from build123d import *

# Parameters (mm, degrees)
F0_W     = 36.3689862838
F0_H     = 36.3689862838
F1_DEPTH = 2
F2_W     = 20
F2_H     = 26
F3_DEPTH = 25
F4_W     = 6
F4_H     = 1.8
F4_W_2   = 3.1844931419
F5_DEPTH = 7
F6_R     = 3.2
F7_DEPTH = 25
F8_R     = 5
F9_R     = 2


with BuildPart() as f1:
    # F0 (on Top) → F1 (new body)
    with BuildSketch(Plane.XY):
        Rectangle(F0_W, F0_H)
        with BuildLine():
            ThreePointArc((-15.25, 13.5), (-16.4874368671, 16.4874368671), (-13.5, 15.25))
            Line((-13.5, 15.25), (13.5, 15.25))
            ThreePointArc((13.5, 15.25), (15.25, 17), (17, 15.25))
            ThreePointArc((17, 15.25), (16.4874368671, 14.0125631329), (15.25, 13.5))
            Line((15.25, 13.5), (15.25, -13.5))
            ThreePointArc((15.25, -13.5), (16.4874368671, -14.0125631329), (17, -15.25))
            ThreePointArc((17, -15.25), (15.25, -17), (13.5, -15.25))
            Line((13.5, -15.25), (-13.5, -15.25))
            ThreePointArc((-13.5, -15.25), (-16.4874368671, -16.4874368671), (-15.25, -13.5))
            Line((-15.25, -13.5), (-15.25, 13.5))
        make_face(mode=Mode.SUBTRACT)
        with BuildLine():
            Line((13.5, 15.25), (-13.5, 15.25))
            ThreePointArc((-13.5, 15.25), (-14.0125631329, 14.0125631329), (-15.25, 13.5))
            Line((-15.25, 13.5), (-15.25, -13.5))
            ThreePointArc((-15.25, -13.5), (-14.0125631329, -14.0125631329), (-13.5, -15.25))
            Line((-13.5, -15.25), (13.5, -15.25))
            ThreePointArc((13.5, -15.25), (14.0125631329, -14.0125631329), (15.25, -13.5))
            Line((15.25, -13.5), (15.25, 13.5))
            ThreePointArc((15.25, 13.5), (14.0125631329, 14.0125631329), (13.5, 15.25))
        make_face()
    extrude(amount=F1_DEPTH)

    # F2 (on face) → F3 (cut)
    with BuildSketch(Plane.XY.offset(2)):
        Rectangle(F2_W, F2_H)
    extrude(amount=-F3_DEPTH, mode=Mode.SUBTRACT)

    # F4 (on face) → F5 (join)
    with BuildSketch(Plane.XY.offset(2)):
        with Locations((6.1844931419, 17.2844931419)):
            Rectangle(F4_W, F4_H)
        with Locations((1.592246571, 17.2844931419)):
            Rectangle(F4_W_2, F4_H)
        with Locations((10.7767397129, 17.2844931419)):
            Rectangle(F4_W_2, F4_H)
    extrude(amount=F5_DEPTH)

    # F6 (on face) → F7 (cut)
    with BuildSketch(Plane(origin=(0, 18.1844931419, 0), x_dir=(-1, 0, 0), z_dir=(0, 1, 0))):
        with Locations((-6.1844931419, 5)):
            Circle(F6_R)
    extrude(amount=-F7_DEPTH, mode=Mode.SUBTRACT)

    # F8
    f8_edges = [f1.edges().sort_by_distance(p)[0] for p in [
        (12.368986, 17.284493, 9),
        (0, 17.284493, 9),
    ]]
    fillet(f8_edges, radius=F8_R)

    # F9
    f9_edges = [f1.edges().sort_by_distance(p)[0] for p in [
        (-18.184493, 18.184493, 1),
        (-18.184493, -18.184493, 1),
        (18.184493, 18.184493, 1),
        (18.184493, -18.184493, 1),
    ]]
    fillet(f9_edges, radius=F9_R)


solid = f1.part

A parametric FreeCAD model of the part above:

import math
import FreeCAD as App
import Part
import Sketcher
from FreeCAD import Vector


def edges_at(feature, points):
    """Names of the edges that pass closest to the given points."""
    edges = feature.Shape.Edges
    near = lambda p: min(range(len(edges)), key=lambda i: edges[i].distToShape(Part.Vertex(*p))[0])
    return sorted({f"Edge{near(p) + 1}" for p in points})

doc = App.newDocument("Part")
body = doc.addObject("PartDesign::Body", "Body")

# Sketch on XY plane
sketch1 = body.newObject("Sketcher::SketchObject", "Sketch")
sketch1.AttachmentSupport = (doc.getObject("XY_Plane"), [""])
sketch1.MapMode = "FlatFace"
sketch1.addGeometry(Part.LineSegment(Vector(-18.2, 18.2, 0), Vector(-18.2, -18.2, 0)), False)
sketch1.addGeometry(Part.LineSegment(Vector(-18.2, -18.2, 0), Vector(18.2, -18.2, 0)), False)
sketch1.addGeometry(Part.LineSegment(Vector(18.2, -18.2, 0), Vector(18.2, 18.2, 0)), False)
sketch1.addGeometry(Part.LineSegment(Vector(18.2, 18.2, 0), Vector(-18.2, 18.2, 0)), False)
sketch1.addGeometry(Part.ArcOfCircle(Part.Circle(Vector(-15.2, -15.2, 0), Vector(0, 0, 1), 1.8), math.radians(90), math.radians(360)), False)
sketch1.addGeometry(Part.ArcOfCircle(Part.Circle(Vector(-15.2, -15.2, 0), Vector(0, 0, 1), 1.8), math.radians(0), math.radians(90)), False)
sketch1.addGeometry(Part.ArcOfCircle(Part.Circle(Vector(15.2, -15.2, 0), Vector(0, 0, 1), 1.8), math.radians(180), math.radians(360)), False)
sketch1.addGeometry(Part.ArcOfCircle(Part.Circle(Vector(15.2, -15.2, 0), Vector(0, 0, 1), 1.8), math.radians(90), math.radians(180)), False)
sketch1.addGeometry(Part.ArcOfCircle(Part.Circle(Vector(15.2, -15.2, 0), Vector(0, 0, 1), 1.8), math.radians(0), math.radians(90)), False)
sketch1.addGeometry(Part.ArcOfCircle(Part.Circle(Vector(15.2, 15.2, 0), Vector(0, 0, 1), 1.8), math.radians(-90), math.radians(0)), False)
sketch1.addGeometry(Part.ArcOfCircle(Part.Circle(Vector(15.2, 15.2, 0), Vector(0, 0, 1), 1.8), math.radians(180), math.radians(270)), False)
sketch1.addGeometry(Part.ArcOfCircle(Part.Circle(Vector(15.2, 15.2, 0), Vector(0, 0, 1), 1.8), math.radians(0), math.radians(180)), False)
sketch1.addGeometry(Part.ArcOfCircle(Part.Circle(Vector(-15.2, 15.2, 0), Vector(0, 0, 1), 1.8), math.radians(0), math.radians(270)), False)
sketch1.addGeometry(Part.ArcOfCircle(Part.Circle(Vector(-15.2, 15.2, 0), Vector(0, 0, 1), 1.8), math.radians(-90), math.radians(0)), False)
sketch1.addConstraint(Sketcher.Constraint("Coincident", 0, 2, 1, 1))
sketch1.addConstraint(Sketcher.Constraint("Coincident", 1, 2, 2, 1))
sketch1.addConstraint(Sketcher.Constraint("Coincident", 2, 2, 3, 1))
sketch1.addConstraint(Sketcher.Constraint("Coincident", 3, 2, 0, 1))
sketch1.addConstraint(Sketcher.Constraint("Tangent", 4, 1, 5, 2))
sketch1.addConstraint(Sketcher.Constraint("Coincident", 5, 1, 4, 2))
sketch1.addConstraint(Sketcher.Constraint("Tangent", 6, 1, 7, 2))
sketch1.addConstraint(Sketcher.Constraint("Tangent", 7, 1, 8, 2))
sketch1.addConstraint(Sketcher.Constraint("Tangent", 8, 1, 6, 2))
sketch1.addConstraint(Sketcher.Constraint("Tangent", 9, 1, 10, 2))
sketch1.addConstraint(Sketcher.Constraint("Tangent", 10, 1, 11, 2))
sketch1.addConstraint(Sketcher.Constraint("Tangent", 11, 1, 9, 2))
sketch1.addConstraint(Sketcher.Constraint("Tangent", 12, 1, 13, 2))
sketch1.addConstraint(Sketcher.Constraint("Coincident", 13, 1, 12, 2))
sketch1.addConstraint(Sketcher.Constraint("Vertical", 0))
sketch1.addConstraint(Sketcher.Constraint("Horizontal", 1))
sketch1.addConstraint(Sketcher.Constraint("Vertical", 2))
sketch1.addConstraint(Sketcher.Constraint("Horizontal", 3))
sketch1.addConstraint(Sketcher.Constraint("Equal", 5, 6))
sketch1.addConstraint(Sketcher.Constraint("Equal", 8, 9))
sketch1.addConstraint(Sketcher.Constraint("Equal", 11, 12))
sketch1.addConstraint(Sketcher.Constraint("Symmetric", 4, 3, 9, 3, -1, 1))
sketch1.addConstraint(Sketcher.Constraint("Symmetric", 6, 3, 12, 3, -1, 1))
sketch1.addConstraint(Sketcher.Constraint("Symmetric", 0, 2, 2, 2, -1, 1))
sketch1.addConstraint(Sketcher.Constraint("Symmetric", 4, 3, 6, 3, -2))
sketch1.addConstraint(Sketcher.Constraint("Horizontal", 8, 3, 5, 1))
sketch1.addConstraint(Sketcher.Constraint("Horizontal", 5, 1, 6, 1))
sketch1.addConstraint(Sketcher.Constraint("Horizontal", 6, 1, 8, 1))
sketch1.addConstraint(Sketcher.Constraint("Horizontal", 13, 3, 10, 1))
sketch1.addConstraint(Sketcher.Constraint("Horizontal", 10, 1, 11, 1))
sketch1.addConstraint(Sketcher.Constraint("Horizontal", 11, 1, 12, 1))
sketch1.addConstraint(Sketcher.Constraint("Vertical", 13, 3, 4, 1))
sketch1.addConstraint(Sketcher.Constraint("Vertical", 11, 3, 7, 1))
sketch1.addConstraint(Sketcher.Constraint("Vertical", 7, 1, 9, 1))
sketch1.addConstraint(Sketcher.Constraint("Vertical", 4, 1, 13, 1))
sketch1.addConstraint(Sketcher.Constraint("Equal", 3, 0))
sketch1.addConstraint(Sketcher.Constraint("Radius", 4, 1.75))
sketch1.addConstraint(Sketcher.Constraint("DistanceX", -1, 1, 8, 1, 17.0))
sketch1.addConstraint(Sketcher.Constraint("DistanceY", 7, 1, 9, 1, 27.0))
sketch1.addConstraint(Sketcher.Constraint("DistanceX", 1, 1, 1, 2, 36.368986))
pad1 = body.newObject("PartDesign::Pad", "Pad")
pad1.Profile = sketch1
pad1.Length = 2

# Sketch on XY plane
sketch2 = body.newObject("Sketcher::SketchObject", "Sketch001")
sketch2.AttachmentSupport = (doc.getObject("XY_Plane"), [""])
sketch2.MapMode = "FlatFace"
sketch2.AttachmentOffset = App.Placement(Vector(0, 0, 2), App.Rotation())
sketch2.addGeometry(Part.LineSegment(Vector(-10, 13, 0), Vector(-10, -13, 0)), False)
sketch2.addGeometry(Part.LineSegment(Vector(-10, -13, 0), Vector(10, -13, 0)), False)
sketch2.addGeometry(Part.LineSegment(Vector(10, -13, 0), Vector(10, 13, 0)), False)
sketch2.addGeometry(Part.LineSegment(Vector(10, 13, 0), Vector(-10, 13, 0)), False)
sketch2.addConstraint(Sketcher.Constraint("Coincident", 0, 2, 1, 1))
sketch2.addConstraint(Sketcher.Constraint("Coincident", 1, 2, 2, 1))
sketch2.addConstraint(Sketcher.Constraint("Coincident", 2, 2, 3, 1))
sketch2.addConstraint(Sketcher.Constraint("Coincident", 3, 2, 0, 1))
sketch2.addConstraint(Sketcher.Constraint("Vertical", 0))
sketch2.addConstraint(Sketcher.Constraint("Horizontal", 1))
sketch2.addConstraint(Sketcher.Constraint("Vertical", 2))
sketch2.addConstraint(Sketcher.Constraint("Horizontal", 3))
sketch2.addConstraint(Sketcher.Constraint("Symmetric", 0, 2, 2, 2, -1, 1))
sketch2.addConstraint(Sketcher.Constraint("DistanceX", 1, 1, 1, 2, 20.0))
sketch2.addConstraint(Sketcher.Constraint("DistanceY", 0, 2, 0, 1, 26.0))
pocket1 = body.newObject("PartDesign::Pocket", "Pocket")
pocket1.Profile = sketch2
pocket1.Length = 25

# Sketch on XY plane
sketch3 = body.newObject("Sketcher::SketchObject", "Sketch002")
sketch3.AttachmentSupport = (doc.getObject("XY_Plane"), [""])
sketch3.MapMode = "FlatFace"
sketch3.AttachmentOffset = App.Placement(Vector(0, 0, 2), App.Rotation())
sketch3.addGeometry(Part.LineSegment(Vector(0, 18.2, 0), Vector(0, 16.4, 0)), False)
sketch3.addGeometry(Part.LineSegment(Vector(0, 16.4, 0), Vector(12.4, 16.4, 0)), False)
sketch3.addGeometry(Part.LineSegment(Vector(12.4, 16.4, 0), Vector(12.4, 18.2, 0)), False)
sketch3.addGeometry(Part.LineSegment(Vector(12.4, 18.2, 0), Vector(0, 18.2, 0)), False)
sketch3.addConstraint(Sketcher.Constraint("Coincident", 0, 2, 1, 1))
sketch3.addConstraint(Sketcher.Constraint("Coincident", 1, 2, 2, 1))
sketch3.addConstraint(Sketcher.Constraint("Coincident", 2, 2, 3, 1))
sketch3.addConstraint(Sketcher.Constraint("Coincident", 3, 2, 0, 1))
sketch3.addConstraint(Sketcher.Constraint("Vertical", 0))
sketch3.addConstraint(Sketcher.Constraint("Horizontal", 1))
sketch3.addConstraint(Sketcher.Constraint("Vertical", 2))
sketch3.addConstraint(Sketcher.Constraint("Horizontal", 3))
sketch3.addConstraint(Sketcher.Constraint("PointOnObject", 0, 2, -2))
sketch3.addConstraint(Sketcher.Constraint("DistanceY", 0, 2, 0, 1, 1.8))
sketch3.addConstraint(Sketcher.Constraint("DistanceX", 1, 1, 1, 2, 12.368986))
sketch3.addConstraint(Sketcher.Constraint("DistanceY", -1, 1, 0, 2, 16.384493))
pad2 = body.newObject("PartDesign::Pad", "Pad001")
pad2.Profile = sketch3
pad2.Length = 7

# Sketch on XZ plane
sketch4 = body.newObject("Sketcher::SketchObject", "Sketch003")
sketch4.AttachmentSupport = (doc.getObject("XZ_Plane"), [""])
sketch4.MapMode = "FlatFace"
sketch4.AttachmentOffset = App.Placement(Vector(0, 0, -18.184493), App.Rotation())
sketch4.addGeometry(Part.Circle(Vector(6.2, 5, 0), Vector(0, 0, 1), 3.2), False)
sketch4.addConstraint(Sketcher.Constraint("Diameter", 0, 6.4))
sketch4.addConstraint(Sketcher.Constraint("DistanceY", -1, 1, 0, 3, 5.0))
sketch4.addConstraint(Sketcher.Constraint("DistanceX", -1, 1, 0, 3, 6.184493))
pocket2 = body.newObject("PartDesign::Pocket", "Pocket001")
pocket2.Profile = sketch4
pocket2.Length = 25
pocket2.Reversed = True
doc.recompute()

fillet = body.newObject("PartDesign::Fillet", "Fillet")
fillet.Base = (pocket2, edges_at(pocket2, [(12.369, 17.284, 9), (0, 17.284, 9)]))
fillet.Radius = 5
doc.recompute()

fillet2 = body.newObject("PartDesign::Fillet", "Fillet001")
fillet2.Base = (fillet, edges_at(fillet, [
    (-18.184, 18.184, 1),
    (-18.184, -18.184, 1),
    (18.184, 18.184, 1),
    (18.184, -18.184, 1),
]))
fillet2.Radius = 2

doc.recompute()
